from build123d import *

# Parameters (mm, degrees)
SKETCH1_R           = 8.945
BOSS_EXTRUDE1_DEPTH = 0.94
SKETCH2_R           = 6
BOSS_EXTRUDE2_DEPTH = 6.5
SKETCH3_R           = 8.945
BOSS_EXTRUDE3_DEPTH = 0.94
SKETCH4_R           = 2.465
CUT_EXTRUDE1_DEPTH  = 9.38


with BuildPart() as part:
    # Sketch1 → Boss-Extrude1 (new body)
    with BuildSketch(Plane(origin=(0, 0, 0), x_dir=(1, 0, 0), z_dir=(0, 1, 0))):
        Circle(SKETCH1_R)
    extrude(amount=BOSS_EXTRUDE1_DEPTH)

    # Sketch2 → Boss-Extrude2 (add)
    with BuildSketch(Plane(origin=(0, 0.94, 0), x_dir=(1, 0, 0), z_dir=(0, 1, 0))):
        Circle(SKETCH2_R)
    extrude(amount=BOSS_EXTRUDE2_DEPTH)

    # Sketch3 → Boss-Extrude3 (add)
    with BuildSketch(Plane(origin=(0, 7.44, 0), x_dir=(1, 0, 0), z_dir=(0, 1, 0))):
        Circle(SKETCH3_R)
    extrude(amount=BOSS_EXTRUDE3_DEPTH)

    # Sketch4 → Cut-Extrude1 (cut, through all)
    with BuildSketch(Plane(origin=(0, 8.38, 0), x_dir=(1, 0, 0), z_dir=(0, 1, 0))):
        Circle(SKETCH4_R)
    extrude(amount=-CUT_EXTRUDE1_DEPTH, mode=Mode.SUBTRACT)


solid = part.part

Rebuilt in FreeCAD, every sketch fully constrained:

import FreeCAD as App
import Part
import Sketcher

V = App.Vector
Q = App.Units.Quantity

doc = App.newDocument("Part")
body = doc.addObject("PartDesign::Body", "Body")

# Sketch on XZ plane
sketch1 = body.newObject("Sketcher::SketchObject", "Sketch")
sketch1.AttachmentSupport = (doc.getObject("XZ_Plane"), [""])
sketch1.MapMode = "FlatFace"
sketch1.addGeometry(Part.Circle(V(0, 0, 0), V(0, 0, 1), 9), False)
sketch1.addConstraint([
    Sketcher.Constraint("Coincident", 0, 3, -1, 1),
    Sketcher.Constraint("Diameter", 0, Q("17.89 mm")),
])
pad1 = body.newObject("PartDesign::Pad", "Pad")
pad1.Profile = sketch1
pad1.Length = 0.94
pad1.Reversed = True

# Sketch on XZ plane
sketch2 = body.newObject("Sketcher::SketchObject", "Sketch001")
sketch2.AttachmentSupport = (doc.getObject("XZ_Plane"), [""])
sketch2.MapMode = "FlatFace"
sketch2.AttachmentOffset = App.Placement(V(0, 0, -0.94), App.Rotation())
sketch2.addGeometry(Part.Circle(V(0, 0, 0), V(0, 0, 1), 6), False)
sketch2.addConstraint([
    Sketcher.Constraint("Coincident", 0, 3, -1, 1),
    Sketcher.Constraint("Diameter", 0, Q("12 mm")),
])
pad2 = body.newObject("PartDesign::Pad", "Pad001")
pad2.Profile = sketch2
pad2.Length = 6.5
pad2.Reversed = True

# Sketch on XZ plane
sketch3 = body.newObject("Sketcher::SketchObject", "Sketch002")
sketch3.AttachmentSupport = (doc.getObject("XZ_Plane"), [""])
sketch3.MapMode = "FlatFace"
sketch3.AttachmentOffset = App.Placement(V(0, 0, -7.44), App.Rotation())
sketch3.addGeometry(Part.Circle(V(0, 0, 0), V(0, 0, 1), 9), False)
sketch3.addConstraint([
    Sketcher.Constraint("Coincident", 0, 3, -1, 1),
    Sketcher.Constraint("Diameter", 0, Q("17.89 mm")),
])
pad3 = body.newObject("PartDesign::Pad", "Pad002")
pad3.Profile = sketch3
pad3.Length = 0.94
pad3.Reversed = True

# Sketch on XZ plane
sketch4 = body.newObject("Sketcher::SketchObject", "Sketch003")
sketch4.AttachmentSupport = (doc.getObject("XZ_Plane"), [""])
sketch4.MapMode = "FlatFace"
sketch4.AttachmentOffset = App.Placement(V(0, 0, -8.38), App.Rotation())
sketch4.addGeometry(Part.Circle(V(0, 0, 0), V(0, 0, 1), 2.5), False)
sketch4.addConstraint([
    Sketcher.Constraint("Coincident", 0, 3, -1, 1),
    Sketcher.Constraint("Diameter", 0, Q("4.93 mm")),
])
pocket1 = body.newObject("PartDesign::Pocket", "Pocket")
pocket1.Profile = sketch4
pocket1.Type = "ThroughAll"
pocket1.Reversed = True

doc.recompute()
